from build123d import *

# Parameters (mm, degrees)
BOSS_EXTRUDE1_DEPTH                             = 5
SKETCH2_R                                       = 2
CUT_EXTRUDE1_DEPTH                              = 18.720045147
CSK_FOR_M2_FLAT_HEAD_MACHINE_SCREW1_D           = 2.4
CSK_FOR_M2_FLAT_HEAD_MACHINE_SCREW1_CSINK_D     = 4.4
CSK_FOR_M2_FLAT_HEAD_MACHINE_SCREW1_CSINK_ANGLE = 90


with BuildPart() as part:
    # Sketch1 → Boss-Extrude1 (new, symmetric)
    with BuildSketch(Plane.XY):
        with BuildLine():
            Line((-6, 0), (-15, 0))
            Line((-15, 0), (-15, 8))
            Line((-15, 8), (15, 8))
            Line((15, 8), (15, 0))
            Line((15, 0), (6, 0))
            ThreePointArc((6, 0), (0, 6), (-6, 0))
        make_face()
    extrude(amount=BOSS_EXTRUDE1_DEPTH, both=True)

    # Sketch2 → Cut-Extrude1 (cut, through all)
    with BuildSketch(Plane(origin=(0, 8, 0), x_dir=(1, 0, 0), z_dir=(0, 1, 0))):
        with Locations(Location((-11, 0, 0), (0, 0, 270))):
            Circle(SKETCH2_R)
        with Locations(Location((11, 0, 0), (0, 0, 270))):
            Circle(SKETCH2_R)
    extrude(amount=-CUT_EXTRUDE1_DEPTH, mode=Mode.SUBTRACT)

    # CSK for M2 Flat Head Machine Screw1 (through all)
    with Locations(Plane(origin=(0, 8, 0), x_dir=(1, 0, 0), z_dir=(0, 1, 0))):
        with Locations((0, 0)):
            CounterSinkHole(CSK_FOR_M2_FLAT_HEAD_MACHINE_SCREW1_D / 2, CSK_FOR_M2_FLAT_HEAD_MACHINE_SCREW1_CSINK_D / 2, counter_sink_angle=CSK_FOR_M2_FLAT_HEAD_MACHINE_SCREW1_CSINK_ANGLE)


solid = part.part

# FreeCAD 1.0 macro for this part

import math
import FreeCAD as App
import Part
import Sketcher

doc = App.newDocument("Part")
body = doc.addObject("PartDesign::Body", "Body")

# Sketch on XY plane
sketch1 = doc.addObject("Sketcher::SketchObject", "Sketch")
body.addObject(sketch1)
sketch1.AttachmentSupport = (doc.XY_Plane, [""])
sketch1.MapMode = "FlatFace"
sketch1.addGeometry(Part.LineSegment(App.Vector(-15, 0, 0), App.Vector(-6, 0, 0)), False)
sketch1.addGeometry(Part.ArcOfCircle(Part.Circle(App.Vector(0, 0, 0), App.Vector(0, 0, 1), 6), math.radians(0), math.radians(180)), False)
sketch1.addGeometry(Part.LineSegment(App.Vector(6, 0, 0), App.Vector(15, 0, 0)), False)
sketch1.addGeometry(Part.LineSegment(App.Vector(15, 0, 0), App.Vector(15, 8, 0)), False)
sketch1.addGeometry(Part.LineSegment(App.Vector(15, 8, 0), App.Vector(-15, 8, 0)), False)
sketch1.addGeometry(Part.LineSegment(App.Vector(-15, 8, 0), App.Vector(-15, 0, 0)), False)
sketch1.addConstraint(Sketcher.Constraint("Coincident", 0, 2, 1, 2))
sketch1.addConstraint(Sketcher.Constraint("Coincident", 1, 1, 2, 1))
sketch1.addConstraint(Sketcher.Constraint("Coincident", 2, 2, 3, 1))
sketch1.addConstraint(Sketcher.Constraint("Coincident", 3, 2, 4, 1))
sketch1.addConstraint(Sketcher.Constraint("Coincident", 4, 2, 5, 1))
sketch1.addConstraint(Sketcher.Constraint("Coincident", 5, 2, 0, 1))
sketch1.addConstraint(Sketcher.Constraint("Horizontal", 0))
sketch1.addConstraint(Sketcher.Constraint("Horizontal", 2))
sketch1.addConstraint(Sketcher.Constraint("Vertical", 3))
sketch1.addConstraint(Sketcher.Constraint("Horizontal", 4))
sketch1.addConstraint(Sketcher.Constraint("Vertical", 5))
sketch1.addConstraint(Sketcher.Constraint("Coincident", 1, 3, -1, 1))
sketch1.addConstraint(Sketcher.Constraint("Symmetric", 2, 2, 5, 2, -1, 1))
sketch1.addConstraint(Sketcher.Constraint("PointOnObject", 0, 2, -1))
sketch1.addConstraint(Sketcher.Constraint("Radius", 1, 6.0))
sketch1.addConstraint(Sketcher.Constraint("DistanceX", 0, 1, 0, 2, 9.0))
sketch1.addConstraint(Sketcher.Constraint("DistanceY", 3, 1, 3, 2, 8.0))
pad1 = doc.addObject("PartDesign::Pad", "Pad")
body.addObject(pad1)
pad1.Profile = sketch1
pad1.Length = 10
pad1.Midplane = True

# Sketch on XZ plane
sketch2 = doc.addObject("Sketcher::SketchObject", "Sketch001")
body.addObject(sketch2)
sketch2.AttachmentSupport = (doc.XZ_Plane, [""])
sketch2.MapMode = "FlatFace"
sketch2.AttachmentOffset = App.Placement(App.Vector(0, 0, -8), App.Rotation())
sketch2.addGeometry(Part.Circle(App.Vector(-11, 0, 0), App.Vector(0, 0, 1), 2), False)
sketch2.addGeometry(Part.Circle(App.Vector(11, 0, 0), App.Vector(0, 0, 1), 2), False)
sketch2.addConstraint(Sketcher.Constraint("Equal", 0, 1))
sketch2.addConstraint(Sketcher.Constraint("Symmetric", 0, 3, 1, 3, -1, 1))
sketch2.addConstraint(Sketcher.Constraint("PointOnObject", 0, 3, -1))
sketch2.addConstraint(Sketcher.Constraint("Diameter", 0, 4.0))
sketch2.addConstraint(Sketcher.Constraint("DistanceX", 0, 3, -1, 1, 11.0))
pocket1 = doc.addObject("PartDesign::Pocket", "Pocket")
body.addObject(pocket1)
pocket1.Profile = sketch2
pocket1.Type = "ThroughAll"
pocket1.Reversed = True

# Sketch on XZ plane
sketch3 = doc.addObject("Sketcher::SketchObject", "Sketch002")
body.addObject(sketch3)
sketch3.AttachmentSupport = (doc.XZ_Plane, [""])
sketch3.MapMode = "FlatFace"
sketch3.AttachmentOffset = App.Placement(App.Vector(0, 0, -8), App.Rotation())
sketch3.addGeometry(Part.Circle(App.Vector(0, 0, 0), App.Vector(0, 0, 1), 1.2), False)
sketch3.addConstraint(Sketcher.Constraint("Coincident", 0, 3, -1, 1))
sketch3.addConstraint(Sketcher.Constraint("Diameter", 0, 2.4))
doc.recompute()
hole = doc.addObject("PartDesign::Hole", "Hole")
body.addObject(hole)
hole.Profile = sketch3
hole.ThreadType = "None"
hole.Diameter = 2.4
hole.DepthType = "ThroughAll"
hole.HoleCutType = "Countersink"
hole.HoleCutDiameter = 4.4
hole.HoleCutCountersinkAngle = 90
hole.Reversed = True

doc.recompute()
